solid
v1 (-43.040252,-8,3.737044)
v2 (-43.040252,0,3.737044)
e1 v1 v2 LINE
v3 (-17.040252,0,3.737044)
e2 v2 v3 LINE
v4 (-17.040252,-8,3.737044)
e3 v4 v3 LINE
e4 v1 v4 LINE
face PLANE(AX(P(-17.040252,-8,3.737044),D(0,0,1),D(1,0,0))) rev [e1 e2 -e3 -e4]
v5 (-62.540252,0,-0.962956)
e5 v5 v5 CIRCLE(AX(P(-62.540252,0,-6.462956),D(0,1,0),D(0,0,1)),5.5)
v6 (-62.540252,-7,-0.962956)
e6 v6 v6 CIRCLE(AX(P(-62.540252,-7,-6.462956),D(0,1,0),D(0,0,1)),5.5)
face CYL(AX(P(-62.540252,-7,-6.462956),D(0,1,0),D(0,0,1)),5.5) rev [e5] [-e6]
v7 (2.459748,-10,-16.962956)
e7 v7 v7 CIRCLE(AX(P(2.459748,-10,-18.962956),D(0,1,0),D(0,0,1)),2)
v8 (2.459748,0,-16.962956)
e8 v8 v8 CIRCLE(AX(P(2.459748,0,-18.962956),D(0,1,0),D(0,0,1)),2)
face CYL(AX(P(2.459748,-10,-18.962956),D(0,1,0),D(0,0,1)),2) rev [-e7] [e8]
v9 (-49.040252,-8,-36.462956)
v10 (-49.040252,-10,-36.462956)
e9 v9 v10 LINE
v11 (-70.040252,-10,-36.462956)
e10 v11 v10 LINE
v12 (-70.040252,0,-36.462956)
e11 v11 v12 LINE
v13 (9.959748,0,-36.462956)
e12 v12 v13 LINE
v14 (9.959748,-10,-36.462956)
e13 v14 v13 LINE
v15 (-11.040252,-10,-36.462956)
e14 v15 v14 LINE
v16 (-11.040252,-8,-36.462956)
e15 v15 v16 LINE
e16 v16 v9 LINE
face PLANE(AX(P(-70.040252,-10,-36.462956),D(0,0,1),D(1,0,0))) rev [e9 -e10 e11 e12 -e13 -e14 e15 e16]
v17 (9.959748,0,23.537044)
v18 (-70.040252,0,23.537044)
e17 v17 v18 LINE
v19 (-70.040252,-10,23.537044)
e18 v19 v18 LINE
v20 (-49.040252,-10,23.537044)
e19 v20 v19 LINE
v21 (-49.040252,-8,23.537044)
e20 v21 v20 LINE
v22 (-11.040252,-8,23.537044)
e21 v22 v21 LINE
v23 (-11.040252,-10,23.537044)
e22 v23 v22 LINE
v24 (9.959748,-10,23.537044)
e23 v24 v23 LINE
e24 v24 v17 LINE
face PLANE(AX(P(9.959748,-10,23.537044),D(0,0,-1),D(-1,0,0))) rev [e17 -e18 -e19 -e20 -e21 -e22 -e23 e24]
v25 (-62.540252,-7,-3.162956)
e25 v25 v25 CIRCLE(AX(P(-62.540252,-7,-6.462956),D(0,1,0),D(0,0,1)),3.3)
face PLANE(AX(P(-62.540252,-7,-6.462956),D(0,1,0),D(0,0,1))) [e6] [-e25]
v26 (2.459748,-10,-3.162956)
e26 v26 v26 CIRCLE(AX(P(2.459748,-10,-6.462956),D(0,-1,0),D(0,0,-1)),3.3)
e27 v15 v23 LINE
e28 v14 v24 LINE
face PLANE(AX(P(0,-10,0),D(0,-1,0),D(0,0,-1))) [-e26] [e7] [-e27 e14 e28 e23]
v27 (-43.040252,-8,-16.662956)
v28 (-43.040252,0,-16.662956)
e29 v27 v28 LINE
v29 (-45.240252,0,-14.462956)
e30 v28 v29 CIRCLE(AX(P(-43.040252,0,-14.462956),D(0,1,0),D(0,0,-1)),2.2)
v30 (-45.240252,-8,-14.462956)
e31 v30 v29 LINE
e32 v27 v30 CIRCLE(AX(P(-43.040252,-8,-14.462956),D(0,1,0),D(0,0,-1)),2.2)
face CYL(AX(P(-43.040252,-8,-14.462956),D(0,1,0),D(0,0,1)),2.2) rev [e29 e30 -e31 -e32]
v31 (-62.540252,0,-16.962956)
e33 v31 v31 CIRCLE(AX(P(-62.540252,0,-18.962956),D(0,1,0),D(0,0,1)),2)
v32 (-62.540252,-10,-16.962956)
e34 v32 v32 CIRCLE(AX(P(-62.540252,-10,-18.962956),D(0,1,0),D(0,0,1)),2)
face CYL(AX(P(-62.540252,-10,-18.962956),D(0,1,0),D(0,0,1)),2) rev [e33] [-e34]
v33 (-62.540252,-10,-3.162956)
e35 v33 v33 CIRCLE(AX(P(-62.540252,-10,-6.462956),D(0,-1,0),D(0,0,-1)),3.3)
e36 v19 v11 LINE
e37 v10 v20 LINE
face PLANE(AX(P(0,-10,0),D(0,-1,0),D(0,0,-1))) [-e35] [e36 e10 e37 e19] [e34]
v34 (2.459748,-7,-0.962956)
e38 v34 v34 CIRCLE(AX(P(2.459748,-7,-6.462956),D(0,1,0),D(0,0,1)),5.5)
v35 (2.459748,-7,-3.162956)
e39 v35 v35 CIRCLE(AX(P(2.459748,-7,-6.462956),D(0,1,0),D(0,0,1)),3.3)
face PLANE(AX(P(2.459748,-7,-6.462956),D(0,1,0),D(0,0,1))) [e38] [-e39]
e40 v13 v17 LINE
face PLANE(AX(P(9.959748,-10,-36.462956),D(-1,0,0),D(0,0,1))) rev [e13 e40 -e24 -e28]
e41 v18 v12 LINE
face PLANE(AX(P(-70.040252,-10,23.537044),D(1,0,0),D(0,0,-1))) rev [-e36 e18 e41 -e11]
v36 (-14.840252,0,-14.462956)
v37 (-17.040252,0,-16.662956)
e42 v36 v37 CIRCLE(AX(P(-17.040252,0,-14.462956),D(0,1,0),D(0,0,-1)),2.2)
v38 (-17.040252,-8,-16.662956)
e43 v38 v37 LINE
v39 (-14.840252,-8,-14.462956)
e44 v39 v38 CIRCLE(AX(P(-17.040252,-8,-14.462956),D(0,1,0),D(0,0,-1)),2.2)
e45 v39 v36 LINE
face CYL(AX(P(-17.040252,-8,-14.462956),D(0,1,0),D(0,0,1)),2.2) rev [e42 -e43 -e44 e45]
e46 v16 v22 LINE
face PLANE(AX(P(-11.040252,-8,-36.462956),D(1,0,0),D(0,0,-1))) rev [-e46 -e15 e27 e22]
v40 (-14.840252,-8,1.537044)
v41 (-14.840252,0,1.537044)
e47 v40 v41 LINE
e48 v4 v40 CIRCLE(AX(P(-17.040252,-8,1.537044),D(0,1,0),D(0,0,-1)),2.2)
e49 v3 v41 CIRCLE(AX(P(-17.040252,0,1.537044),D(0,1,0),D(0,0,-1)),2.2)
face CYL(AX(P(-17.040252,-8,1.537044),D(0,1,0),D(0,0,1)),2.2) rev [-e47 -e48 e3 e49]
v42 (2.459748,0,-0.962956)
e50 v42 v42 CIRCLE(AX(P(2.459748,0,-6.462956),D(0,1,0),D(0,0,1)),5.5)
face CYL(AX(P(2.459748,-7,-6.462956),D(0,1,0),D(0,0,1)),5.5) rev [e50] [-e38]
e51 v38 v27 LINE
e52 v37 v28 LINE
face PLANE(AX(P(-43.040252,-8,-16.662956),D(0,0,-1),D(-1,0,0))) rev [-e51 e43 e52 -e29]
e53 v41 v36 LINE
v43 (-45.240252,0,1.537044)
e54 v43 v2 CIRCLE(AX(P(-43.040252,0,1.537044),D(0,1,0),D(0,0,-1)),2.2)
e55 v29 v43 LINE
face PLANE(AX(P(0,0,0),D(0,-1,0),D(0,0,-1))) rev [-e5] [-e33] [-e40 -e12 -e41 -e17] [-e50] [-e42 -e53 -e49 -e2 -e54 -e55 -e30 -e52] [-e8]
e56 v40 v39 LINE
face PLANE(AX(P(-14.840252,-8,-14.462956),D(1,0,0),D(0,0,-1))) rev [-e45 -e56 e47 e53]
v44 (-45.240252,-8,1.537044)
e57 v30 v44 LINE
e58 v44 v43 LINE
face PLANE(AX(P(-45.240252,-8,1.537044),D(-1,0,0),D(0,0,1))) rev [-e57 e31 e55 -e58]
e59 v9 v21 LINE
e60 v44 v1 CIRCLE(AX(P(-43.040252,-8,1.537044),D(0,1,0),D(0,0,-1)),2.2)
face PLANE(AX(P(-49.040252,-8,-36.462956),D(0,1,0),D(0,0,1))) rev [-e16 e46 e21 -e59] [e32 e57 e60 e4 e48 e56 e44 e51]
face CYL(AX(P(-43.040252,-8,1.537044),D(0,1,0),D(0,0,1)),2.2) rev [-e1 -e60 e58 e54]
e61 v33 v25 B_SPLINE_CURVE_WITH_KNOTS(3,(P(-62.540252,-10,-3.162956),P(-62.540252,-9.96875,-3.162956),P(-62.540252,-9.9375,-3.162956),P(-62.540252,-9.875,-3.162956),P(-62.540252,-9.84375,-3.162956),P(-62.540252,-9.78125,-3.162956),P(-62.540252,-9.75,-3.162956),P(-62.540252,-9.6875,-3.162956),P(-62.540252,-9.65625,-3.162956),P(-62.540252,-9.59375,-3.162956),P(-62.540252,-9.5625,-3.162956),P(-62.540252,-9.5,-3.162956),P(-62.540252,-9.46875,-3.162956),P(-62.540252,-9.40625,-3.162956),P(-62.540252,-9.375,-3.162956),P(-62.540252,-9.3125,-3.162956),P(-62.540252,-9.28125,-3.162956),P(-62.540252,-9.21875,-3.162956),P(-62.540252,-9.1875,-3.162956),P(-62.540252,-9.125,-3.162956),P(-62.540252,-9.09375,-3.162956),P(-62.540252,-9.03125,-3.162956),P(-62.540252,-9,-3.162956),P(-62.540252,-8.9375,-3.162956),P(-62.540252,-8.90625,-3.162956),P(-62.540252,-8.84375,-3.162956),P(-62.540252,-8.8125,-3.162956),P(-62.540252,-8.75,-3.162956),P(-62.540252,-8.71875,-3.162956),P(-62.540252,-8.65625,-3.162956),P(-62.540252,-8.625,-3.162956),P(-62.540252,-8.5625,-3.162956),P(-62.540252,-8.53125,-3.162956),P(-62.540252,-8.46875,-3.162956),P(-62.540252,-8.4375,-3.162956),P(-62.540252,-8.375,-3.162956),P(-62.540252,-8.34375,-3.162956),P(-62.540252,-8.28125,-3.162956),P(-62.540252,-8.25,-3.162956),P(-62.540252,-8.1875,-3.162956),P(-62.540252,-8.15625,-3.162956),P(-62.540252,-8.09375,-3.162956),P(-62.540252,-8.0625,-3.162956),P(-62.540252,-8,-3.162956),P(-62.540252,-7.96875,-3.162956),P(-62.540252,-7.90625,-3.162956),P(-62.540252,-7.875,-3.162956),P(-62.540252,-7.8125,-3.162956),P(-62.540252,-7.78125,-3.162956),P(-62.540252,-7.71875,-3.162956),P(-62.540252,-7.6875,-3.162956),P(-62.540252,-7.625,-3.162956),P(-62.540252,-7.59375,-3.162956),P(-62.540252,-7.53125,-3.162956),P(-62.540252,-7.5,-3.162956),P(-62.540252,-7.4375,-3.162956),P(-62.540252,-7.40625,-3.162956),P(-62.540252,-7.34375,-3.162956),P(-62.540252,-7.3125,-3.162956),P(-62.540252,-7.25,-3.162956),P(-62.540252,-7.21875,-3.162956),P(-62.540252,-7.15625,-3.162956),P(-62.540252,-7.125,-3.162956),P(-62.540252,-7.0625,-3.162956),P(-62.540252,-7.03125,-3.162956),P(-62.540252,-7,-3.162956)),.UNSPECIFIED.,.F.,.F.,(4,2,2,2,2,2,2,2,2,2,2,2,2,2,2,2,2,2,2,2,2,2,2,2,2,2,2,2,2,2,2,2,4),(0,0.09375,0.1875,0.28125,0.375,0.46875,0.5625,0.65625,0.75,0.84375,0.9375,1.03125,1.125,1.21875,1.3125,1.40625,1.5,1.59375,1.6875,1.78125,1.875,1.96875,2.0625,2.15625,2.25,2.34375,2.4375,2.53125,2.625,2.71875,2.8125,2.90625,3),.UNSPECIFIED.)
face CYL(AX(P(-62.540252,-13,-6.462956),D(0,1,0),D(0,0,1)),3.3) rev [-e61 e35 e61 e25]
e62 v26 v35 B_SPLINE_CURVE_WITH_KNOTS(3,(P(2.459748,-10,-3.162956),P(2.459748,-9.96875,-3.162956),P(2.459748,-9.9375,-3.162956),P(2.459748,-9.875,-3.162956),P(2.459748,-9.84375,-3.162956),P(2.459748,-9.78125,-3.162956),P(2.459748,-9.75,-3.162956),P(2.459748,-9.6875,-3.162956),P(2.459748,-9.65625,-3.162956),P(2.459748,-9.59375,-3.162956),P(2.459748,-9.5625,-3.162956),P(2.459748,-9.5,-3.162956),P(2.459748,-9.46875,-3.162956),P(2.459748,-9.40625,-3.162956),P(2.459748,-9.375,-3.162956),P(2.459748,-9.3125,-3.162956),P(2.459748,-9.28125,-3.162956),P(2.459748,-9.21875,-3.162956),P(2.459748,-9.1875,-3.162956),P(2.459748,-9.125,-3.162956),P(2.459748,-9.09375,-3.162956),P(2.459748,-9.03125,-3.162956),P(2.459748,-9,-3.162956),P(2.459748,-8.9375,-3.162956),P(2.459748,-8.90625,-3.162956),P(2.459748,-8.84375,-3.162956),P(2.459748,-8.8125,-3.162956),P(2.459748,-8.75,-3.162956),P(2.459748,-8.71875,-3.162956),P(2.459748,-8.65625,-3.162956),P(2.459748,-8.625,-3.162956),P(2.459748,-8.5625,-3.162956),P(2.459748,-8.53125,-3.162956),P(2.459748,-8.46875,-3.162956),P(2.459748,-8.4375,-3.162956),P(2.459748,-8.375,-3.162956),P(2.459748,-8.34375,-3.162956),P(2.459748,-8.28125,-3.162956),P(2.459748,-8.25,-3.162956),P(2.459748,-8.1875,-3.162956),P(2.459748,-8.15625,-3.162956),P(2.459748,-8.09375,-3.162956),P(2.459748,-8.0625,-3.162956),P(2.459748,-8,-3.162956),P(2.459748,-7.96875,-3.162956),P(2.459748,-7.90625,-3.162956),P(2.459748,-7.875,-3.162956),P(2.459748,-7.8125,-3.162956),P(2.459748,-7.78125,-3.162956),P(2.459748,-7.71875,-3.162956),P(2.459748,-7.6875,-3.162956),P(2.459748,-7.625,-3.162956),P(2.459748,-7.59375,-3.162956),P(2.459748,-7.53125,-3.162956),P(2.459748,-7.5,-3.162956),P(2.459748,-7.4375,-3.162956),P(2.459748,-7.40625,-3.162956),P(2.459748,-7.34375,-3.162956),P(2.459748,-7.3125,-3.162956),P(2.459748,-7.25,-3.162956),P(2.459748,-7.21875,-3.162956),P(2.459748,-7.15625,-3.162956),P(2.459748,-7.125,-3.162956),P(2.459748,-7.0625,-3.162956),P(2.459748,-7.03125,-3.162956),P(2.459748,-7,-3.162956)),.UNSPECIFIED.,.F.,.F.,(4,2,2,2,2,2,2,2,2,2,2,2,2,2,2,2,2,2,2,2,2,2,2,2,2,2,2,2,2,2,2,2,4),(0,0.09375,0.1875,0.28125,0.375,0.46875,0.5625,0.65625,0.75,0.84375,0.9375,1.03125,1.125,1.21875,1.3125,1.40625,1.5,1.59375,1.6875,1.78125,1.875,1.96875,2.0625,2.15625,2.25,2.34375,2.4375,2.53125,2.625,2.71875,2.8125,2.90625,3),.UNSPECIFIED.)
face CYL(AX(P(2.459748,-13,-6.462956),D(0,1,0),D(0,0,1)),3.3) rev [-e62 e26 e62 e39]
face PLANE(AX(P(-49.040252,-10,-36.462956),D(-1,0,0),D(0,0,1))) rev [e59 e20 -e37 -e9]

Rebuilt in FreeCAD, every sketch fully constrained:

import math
import FreeCAD as App
import Part
import Sketcher
from FreeCAD import Vector
Q = App.Units.Quantity


def add_polygon(sketch, points):
    """Adds a closed chain of lines whose ends are joined by coincident constraints."""
    first, n = sketch.GeometryCount, len(points)
    for a, b in zip(points, points[1:] + points[:1]):
        sketch.addGeometry(Part.LineSegment(App.Vector(*a, 0), App.Vector(*b, 0)), False)
    for i in range(n):
        sketch.addConstraint(Sketcher.Constraint("Coincident", first + i, 2, first + (i + 1) % n, 1))

doc = App.newDocument("Part")
params = doc.addObject("Spreadsheet::Sheet", "Params")
for row, (alias, value) in enumerate([
    ("sketch1_width", "80 mm"),
    ("sketch1_height", "60 mm"),
    ("pad1_length", "10 mm"),
    ("sketch2_diameter", "11 mm"),
    ("pocket1_length", "7 mm"),
    ("sketch3_diameter", "4 mm"),
    ("pocket2_length", "10 mm"),
    ("sketch4_radius", "2.2 mm"),
    ("sketch4_width", "26 mm"),
    ("sketch4_height", "16 mm"),
    ("pocket3_length", "8 mm"),
    ("sketch5_width", "38 mm"),
    ("sketch5_height", "2 mm"),
    ("pocket4_length", "60 mm"),
    ("sketch6_diameter", "6.6 mm"),
    ("pocket5_length", "13 mm"),
], start=1):
    params.set(f"A{row}", alias)
    params.set(f"B{row}", "=" + value)
    params.setAlias(f"B{row}", alias)

body = doc.addObject("PartDesign::Body", "Body")

sketch1 = body.newObject("Sketcher::SketchObject", "Sketch")
sketch1.AttachmentSupport = (doc.getObject("XZ_Plane"), [""])
sketch1.MapMode = "FlatFace"
add_polygon(sketch1, [(-70, -36), (-70, 24), (10, 24), (10, -36)])
sketch1.addConstraint([
    Sketcher.Constraint("Vertical", 0),
    Sketcher.Constraint("Horizontal", 1),
    Sketcher.Constraint("Vertical", 2),
    Sketcher.Constraint("Horizontal", 3),
    Sketcher.Constraint("DistanceX", 1, 1, 1, 2, Q("80 mm")),
    Sketcher.Constraint("DistanceY", 0, 1, 0, 2, Q("60 mm")),
    Sketcher.Constraint("DistanceX", 0, 2, -1, 1, Q("70.040252 mm")),
    Sketcher.Constraint("DistanceY", -1, 1, 0, 2, Q("23.537044 mm")),
])
sketch1.setExpression("Constraints[8]", "Params.sketch1_width")
sketch1.setExpression("Constraints[9]", "Params.sketch1_height")
pad1 = body.newObject("PartDesign::Pad", "Pad")
pad1.Profile = sketch1
pad1.setExpression("Length", "Params.pad1_length")

sketch2 = body.newObject("Sketcher::SketchObject", "Sketch001")
sketch2.AttachmentSupport = (doc.getObject("XZ_Plane"), [""])
sketch2.MapMode = "FlatFace"
sketch2.addGeometry([
    Part.Circle(Vector(-63, -6, 0), Vector(0, 0, 1), 6),
    Part.Circle(Vector(2, -6, 0), Vector(0, 0, 1), 6),
], False)
sketch2.addConstraint([
    Sketcher.Constraint("Equal", 0, 1),
    Sketcher.Constraint("Horizontal", 0, 3, 1, 3),
    Sketcher.Constraint("Diameter", 0, Q("11 mm")),
    Sketcher.Constraint("DistanceX", 0, 3, 1, 3, Q("65 mm")),
    Sketcher.Constraint("DistanceX", 0, 3, -1, 1, Q("62.540252 mm")),
    Sketcher.Constraint("DistanceY", 0, 3, -1, 1, Q("6.462956 mm")),
])
sketch2.setExpression("Constraints[2]", "Params.sketch2_diameter")
pocket1 = body.newObject("PartDesign::Pocket", "Pocket")
pocket1.Profile = sketch2
pocket1.setExpression("Length", "Params.pocket1_length")
pocket1.Reversed = True

sketch3 = body.newObject("Sketcher::SketchObject", "Sketch002")
sketch3.AttachmentSupport = (doc.getObject("XZ_Plane"), [""])
sketch3.MapMode = "FlatFace"
sketch3.addGeometry([
    Part.Circle(Vector(-62.5, -19, 0), Vector(0, 0, 1), 2),
    Part.Circle(Vector(2.5, -19, 0), Vector(0, 0, 1), 2),
], False)
sketch3.addConstraint([
    Sketcher.Constraint("Equal", 0, 1),
    Sketcher.Constraint("Horizontal", 0, 3, 1, 3),
    Sketcher.Constraint("Diameter", 0, Q("4 mm")),
    Sketcher.Constraint("DistanceX", 0, 3, 1, 3, Q("65 mm")),
    Sketcher.Constraint("DistanceX", 0, 3, -1, 1, Q("62.540252 mm")),
    Sketcher.Constraint("DistanceY", 0, 3, -1, 1, Q("18.962956 mm")),
])
sketch3.setExpression("Constraints[2]", "Params.sketch3_diameter")
pocket2 = body.newObject("PartDesign::Pocket", "Pocket001")
pocket2.Profile = sketch3
pocket2.setExpression("Length", "Params.pocket2_length")
pocket2.Reversed = True

sketch4 = body.newObject("Sketcher::SketchObject", "Sketch003")
sketch4.AttachmentSupport = (doc.getObject("XZ_Plane"), [""])
sketch4.MapMode = "FlatFace"
sketch4.addGeometry([
    Part.LineSegment(Vector(-17, -16.7, 0), Vector(-43, -16.7, 0)),
    Part.ArcOfCircle(Part.Circle(Vector(-43, -14.5, 0), Vector(0, 0, 1), 2.2), math.radians(180), math.radians(270)),
    Part.LineSegment(Vector(-45.2, -14.5, 0), Vector(-45.2, 1.5, 0)),
    Part.ArcOfCircle(Part.Circle(Vector(-43, 1.5, 0), Vector(0, 0, 1), 2.2), math.radians(90), math.radians(180)),
    Part.LineSegment(Vector(-43, 3.7, 0), Vector(-17, 3.7, 0)),
    Part.ArcOfCircle(Part.Circle(Vector(-17, 1.5, 0), Vector(0, 0, 1), 2.2), math.radians(0), math.radians(90)),
    Part.LineSegment(Vector(-14.8, 1.5, 0), Vector(-14.8, -14.5, 0)),
    Part.ArcOfCircle(Part.Circle(Vector(-17, -14.5, 0), Vector(0, 0, 1), 2.2), math.radians(-90), math.radians(0)),
], False)
sketch4.addConstraint([
    Sketcher.Constraint("Tangent", 0, 2, 1, 2),
    Sketcher.Constraint("Tangent", 1, 1, 2, 1),
    Sketcher.Constraint("Tangent", 2, 2, 3, 2),
    Sketcher.Constraint("Tangent", 3, 1, 4, 1),
    Sketcher.Constraint("Tangent", 4, 2, 5, 2),
    Sketcher.Constraint("Tangent", 5, 1, 6, 1),
    Sketcher.Constraint("Tangent", 6, 2, 7, 2),
    Sketcher.Constraint("Tangent", 7, 1, 0, 1),
    Sketcher.Constraint("Horizontal", 0),
    Sketcher.Constraint("Vertical", 2),
    Sketcher.Constraint("Horizontal", 4),
    Sketcher.Constraint("Vertical", 6),
    Sketcher.Constraint("Equal", 1, 3),
    Sketcher.Constraint("Equal", 3, 5),
    Sketcher.Constraint("Equal", 5, 7),
    Sketcher.Constraint("Radius", 1, Q("2.2 mm")),
    Sketcher.Constraint("DistanceX", 0, 2, 0, 1, Q("26 mm")),
    Sketcher.Constraint("DistanceY", 2, 1, 2, 2, Q("16 mm")),
    Sketcher.Constraint("DistanceX", 1, 3, -1, 1, Q("43.040252 mm")),
    Sketcher.Constraint("DistanceY", 1, 3, -1, 1, Q("14.462956 mm")),
])
sketch4.setExpression("Constraints[15]", "Params.sketch4_radius")
sketch4.setExpression("Constraints[16]", "Params.sketch4_width")
sketch4.setExpression("Constraints[17]", "Params.sketch4_height")
pocket3 = body.newObject("PartDesign::Pocket", "Pocket002")
pocket3.Profile = sketch4
pocket3.setExpression("Length", "Params.pocket3_length")
pocket3.Reversed = True

sketch5 = body.newObject("Sketcher::SketchObject", "Sketch004")
sketch5.AttachmentSupport = (doc.getObject("XY_Plane"), [""])
sketch5.MapMode = "FlatFace"
sketch5.AttachmentOffset = App.Placement(Vector(0, 0, 23.537044), App.Rotation())
add_polygon(sketch5, [(-49, -8), (-49, -10), (-11, -10), (-11, -8)])
sketch5.addConstraint([
    Sketcher.Constraint("Vertical", 0),
    Sketcher.Constraint("Horizontal", 1),
    Sketcher.Constraint("Vertical", 2),
    Sketcher.Constraint("Horizontal", 3),
    Sketcher.Constraint("DistanceX", 1, 1, 1, 2, Q("38 mm")),
    Sketcher.Constraint("DistanceY", 0, 2, 0, 1, Q("2 mm")),
    Sketcher.Constraint("DistanceY", 0, 2, -1, 1, Q("10 mm")),
    Sketcher.Constraint("DistanceX", 0, 2, -1, 1, Q("49.040252 mm")),
])
sketch5.setExpression("Constraints[8]", "Params.sketch5_width")
sketch5.setExpression("Constraints[9]", "Params.sketch5_height")
pocket4 = body.newObject("PartDesign::Pocket", "Pocket003")
pocket4.Profile = sketch5
pocket4.setExpression("Length", "Params.pocket4_length")

sketch6 = body.newObject("Sketcher::SketchObject", "Sketch005")
sketch6.AttachmentSupport = (doc.getObject("XZ_Plane"), [""])
sketch6.MapMode = "FlatFace"
sketch6.addGeometry([
    Part.Circle(Vector(-62.5, -6.5, 0), Vector(0, 0, 1), 3.3),
    Part.Circle(Vector(2.5, -6.5, 0), Vector(0, 0, 1), 3.3),
], False)
sketch6.addConstraint([
    Sketcher.Constraint("Equal", 0, 1),
    Sketcher.Constraint("Horizontal", 0, 3, 1, 3),
    Sketcher.Constraint("Diameter", 0, Q("6.6 mm")),
    Sketcher.Constraint("DistanceX", 0, 3, 1, 3, Q("65 mm")),
    Sketcher.Constraint("DistanceX", 0, 3, -1, 1, Q("62.540252 mm")),
    Sketcher.Constraint("DistanceY", 0, 3, -1, 1, Q("6.462956 mm")),
])
sketch6.setExpression("Constraints[2]", "Params.sketch6_diameter")
pocket5 = body.newObject("PartDesign::Pocket", "Pocket004")
pocket5.Profile = sketch6
pocket5.setExpression("Length", "Params.pocket5_length")
pocket5.Reversed = True

doc.recompute()
